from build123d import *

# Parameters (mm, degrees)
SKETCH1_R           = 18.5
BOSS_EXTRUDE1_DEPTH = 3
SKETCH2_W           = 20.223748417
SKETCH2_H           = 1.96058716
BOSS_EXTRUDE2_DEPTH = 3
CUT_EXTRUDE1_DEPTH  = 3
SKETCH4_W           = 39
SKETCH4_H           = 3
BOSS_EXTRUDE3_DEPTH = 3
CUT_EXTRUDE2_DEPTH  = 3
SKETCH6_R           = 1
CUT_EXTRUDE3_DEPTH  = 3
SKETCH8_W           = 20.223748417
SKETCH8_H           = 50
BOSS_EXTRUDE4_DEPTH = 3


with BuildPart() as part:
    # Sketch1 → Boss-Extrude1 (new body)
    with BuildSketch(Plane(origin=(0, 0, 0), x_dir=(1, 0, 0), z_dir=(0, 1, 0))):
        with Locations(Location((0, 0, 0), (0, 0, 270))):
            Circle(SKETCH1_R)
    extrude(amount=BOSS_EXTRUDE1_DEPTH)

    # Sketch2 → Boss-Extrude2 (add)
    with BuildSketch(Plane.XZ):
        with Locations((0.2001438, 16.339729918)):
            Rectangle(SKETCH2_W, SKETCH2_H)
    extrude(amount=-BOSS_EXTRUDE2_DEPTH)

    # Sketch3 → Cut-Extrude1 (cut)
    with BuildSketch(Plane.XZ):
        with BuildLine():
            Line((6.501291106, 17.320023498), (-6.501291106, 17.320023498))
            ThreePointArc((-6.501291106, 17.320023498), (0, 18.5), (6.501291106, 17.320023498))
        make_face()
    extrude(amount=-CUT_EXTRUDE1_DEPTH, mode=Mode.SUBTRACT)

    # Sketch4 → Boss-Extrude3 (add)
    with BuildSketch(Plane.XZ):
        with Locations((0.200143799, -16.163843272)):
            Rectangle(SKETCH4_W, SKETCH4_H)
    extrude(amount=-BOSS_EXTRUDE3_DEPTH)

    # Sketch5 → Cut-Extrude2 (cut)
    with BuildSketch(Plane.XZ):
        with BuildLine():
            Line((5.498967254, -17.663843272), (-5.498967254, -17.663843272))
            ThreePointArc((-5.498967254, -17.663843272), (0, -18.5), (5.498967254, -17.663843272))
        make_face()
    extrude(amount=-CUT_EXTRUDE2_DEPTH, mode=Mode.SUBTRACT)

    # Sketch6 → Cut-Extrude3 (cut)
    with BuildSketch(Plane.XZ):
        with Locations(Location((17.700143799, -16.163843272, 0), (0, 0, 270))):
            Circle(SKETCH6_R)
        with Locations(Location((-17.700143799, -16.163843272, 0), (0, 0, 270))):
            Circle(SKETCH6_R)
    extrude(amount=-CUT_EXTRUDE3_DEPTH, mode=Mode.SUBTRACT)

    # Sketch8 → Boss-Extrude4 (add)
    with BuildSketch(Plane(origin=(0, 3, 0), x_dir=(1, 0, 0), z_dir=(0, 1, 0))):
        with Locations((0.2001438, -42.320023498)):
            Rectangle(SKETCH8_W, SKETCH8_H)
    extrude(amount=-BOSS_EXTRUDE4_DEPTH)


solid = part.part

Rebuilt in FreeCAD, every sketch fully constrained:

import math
import FreeCAD as App
import Part
import Sketcher
from FreeCAD import Vector

doc = App.newDocument("Part")
params = doc.addObject("Spreadsheet::Sheet", "Params")
for row, (alias, value) in enumerate([
    ("sketch1_diameter", "37 mm"),
    ("pad1_length", "3 mm"),
    ("pad2_length", "3 mm"),
    ("sketch3_radius", "18.5 mm"),
    ("pocket1_length", "3 mm"),
    ("sketch4_width", "39 mm"),
    ("sketch4_height", "3 mm"),
    ("pad3_length", "3 mm"),
    ("sketch5_radius", "18.5 mm"),
    ("pocket2_length", "3 mm"),
    ("sketch6_diameter", "2 mm"),
    ("pocket3_length", "3 mm"),
    ("sketch7_height", "50 mm"),
    ("pad4_length", "3 mm"),
], start=1):
    params.set(f"A{row}", alias)
    params.set(f"B{row}", "=" + value)
    params.setAlias(f"B{row}", alias)

body = doc.addObject("PartDesign::Body", "Body")

# Sketch on XZ plane
sketch1 = body.newObject("Sketcher::SketchObject", "Sketch")
sketch1.AttachmentSupport = (doc.getObject("XZ_Plane"), [""])
sketch1.MapMode = "FlatFace"
sketch1.addGeometry(Part.Circle(Vector(0, 0, 0), Vector(0, 0, 1), 18), False)
sketch1.addConstraint(Sketcher.Constraint("Coincident", 0, 3, -1, 1))
sketch1.addConstraint(Sketcher.Constraint("Diameter", 0, 37.0))
sketch1.setExpression("Constraints[1]", "Params.sketch1_diameter")
pad1 = body.newObject("PartDesign::Pad", "Pad")
pad1.Profile = sketch1
pad1.setExpression("Length", "Params.pad1_length")
pad1.Reversed = True

# Sketch on XZ plane
sketch2 = body.newObject("Sketcher::SketchObject", "Sketch001")
sketch2.AttachmentSupport = (doc.getObject("XZ_Plane"), [""])
sketch2.MapMode = "FlatFace"
sketch2.addGeometry(Part.LineSegment(Vector(-9.9, 17.3, 0), Vector(-9.9, 15.4, 0)), False)
sketch2.addGeometry(Part.LineSegment(Vector(-9.9, 15.4, 0), Vector(10.3, 15.4, 0)), False)
sketch2.addGeometry(Part.LineSegment(Vector(10.3, 15.4, 0), Vector(10.3, 17.3, 0)), False)
sketch2.addGeometry(Part.LineSegment(Vector(10.3, 17.3, 0), Vector(-9.9, 17.3, 0)), False)
sketch2.addConstraint(Sketcher.Constraint("Coincident", 0, 2, 1, 1))
sketch2.addConstraint(Sketcher.Constraint("Coincident", 1, 2, 2, 1))
sketch2.addConstraint(Sketcher.Constraint("Coincident", 2, 2, 3, 1))
sketch2.addConstraint(Sketcher.Constraint("Coincident", 3, 2, 0, 1))
sketch2.addConstraint(Sketcher.Constraint("Vertical", 0))
sketch2.addConstraint(Sketcher.Constraint("Horizontal", 1))
sketch2.addConstraint(Sketcher.Constraint("Vertical", 2))
sketch2.addConstraint(Sketcher.Constraint("Horizontal", 3))
sketch2.addConstraint(Sketcher.Constraint("DistanceX", 1, 1, 1, 2, 20.223748))
sketch2.addConstraint(Sketcher.Constraint("DistanceY", 0, 2, 0, 1, 1.960587))
sketch2.addConstraint(Sketcher.Constraint("DistanceX", 0, 2, -1, 1, 9.91173))
sketch2.addConstraint(Sketcher.Constraint("DistanceY", -1, 1, 0, 2, 15.359436))
pad2 = body.newObject("PartDesign::Pad", "Pad001")
pad2.Profile = sketch2
pad2.setExpression("Length", "Params.pad2_length")
pad2.Reversed = True

# Sketch on XZ plane
sketch3 = body.newObject("Sketcher::SketchObject", "Sketch002")
sketch3.AttachmentSupport = (doc.getObject("XZ_Plane"), [""])
sketch3.MapMode = "FlatFace"
sketch3.addGeometry(Part.LineSegment(Vector(-7, 17, 0), Vector(7, 17, 0)), False)
sketch3.addGeometry(Part.ArcOfCircle(Part.Circle(Vector(0, 0, 0), Vector(0, 0, 1), 19), math.radians(69), math.radians(111)), False)
sketch3.addConstraint(Sketcher.Constraint("Coincident", 0, 1, 1, 2))
sketch3.addConstraint(Sketcher.Constraint("Coincident", 1, 1, 0, 2))
sketch3.addConstraint(Sketcher.Constraint("Horizontal", 0))
sketch3.addConstraint(Sketcher.Constraint("Coincident", 1, 3, -1, 1))
sketch3.addConstraint(Sketcher.Constraint("Radius", 1, 18.5))
sketch3.addConstraint(Sketcher.Constraint("DistanceX", 0, 1, 0, 2, 13.002582))
sketch3.setExpression("Constraints[4]", "Params.sketch3_radius")
pocket1 = body.newObject("PartDesign::Pocket", "Pocket")
pocket1.Profile = sketch3
pocket1.setExpression("Length", "Params.pocket1_length")

# Sketch on XZ plane
sketch4 = body.newObject("Sketcher::SketchObject", "Sketch003")
sketch4.AttachmentSupport = (doc.getObject("XZ_Plane"), [""])
sketch4.MapMode = "FlatFace"
sketch4.addGeometry(Part.LineSegment(Vector(-19.3, -14.7, 0), Vector(-19.3, -17.7, 0)), False)
sketch4.addGeometry(Part.LineSegment(Vector(-19.3, -17.7, 0), Vector(19.7, -17.7, 0)), False)
sketch4.addGeometry(Part.LineSegment(Vector(19.7, -17.7, 0), Vector(19.7, -14.7, 0)), False)
sketch4.addGeometry(Part.LineSegment(Vector(19.7, -14.7, 0), Vector(-19.3, -14.7, 0)), False)
sketch4.addConstraint(Sketcher.Constraint("Coincident", 0, 2, 1, 1))
sketch4.addConstraint(Sketcher.Constraint("Coincident", 1, 2, 2, 1))
sketch4.addConstraint(Sketcher.Constraint("Coincident", 2, 2, 3, 1))
sketch4.addConstraint(Sketcher.Constraint("Coincident", 3, 2, 0, 1))
sketch4.addConstraint(Sketcher.Constraint("Vertical", 0))
sketch4.addConstraint(Sketcher.Constraint("Horizontal", 1))
sketch4.addConstraint(Sketcher.Constraint("Vertical", 2))
sketch4.addConstraint(Sketcher.Constraint("Horizontal", 3))
sketch4.addConstraint(Sketcher.Constraint("DistanceX", 1, 1, 1, 2, 39.0))
sketch4.addConstraint(Sketcher.Constraint("DistanceY", 0, 2, 0, 1, 3.0))
sketch4.addConstraint(Sketcher.Constraint("DistanceX", 0, 2, -1, 1, 19.299856))
sketch4.addConstraint(Sketcher.Constraint("DistanceY", 0, 2, -1, 1, 17.663843))
sketch4.setExpression("Constraints[8]", "Params.sketch4_width")
sketch4.setExpression("Constraints[9]", "Params.sketch4_height")
pad3 = body.newObject("PartDesign::Pad", "Pad002")
pad3.Profile = sketch4
pad3.setExpression("Length", "Params.pad3_length")
pad3.Reversed = True

# Sketch on XZ plane
sketch5 = body.newObject("Sketcher::SketchObject", "Sketch004")
sketch5.AttachmentSupport = (doc.getObject("XZ_Plane"), [""])
sketch5.MapMode = "FlatFace"
sketch5.addGeometry(Part.LineSegment(Vector(5, -18, 0), Vector(-5, -18, 0)), False)
sketch5.addGeometry(Part.ArcOfCircle(Part.Circle(Vector(0, 0, 0), Vector(0, 0, 1), 18), math.radians(-107), math.radians(-73)), False)
sketch5.addConstraint(Sketcher.Constraint("Coincident", 0, 1, 1, 2))
sketch5.addConstraint(Sketcher.Constraint("Coincident", 1, 1, 0, 2))
sketch5.addConstraint(Sketcher.Constraint("Horizontal", 0))
sketch5.addConstraint(Sketcher.Constraint("Coincident", 1, 3, -1, 1))
sketch5.addConstraint(Sketcher.Constraint("Radius", 1, 18.5))
sketch5.addConstraint(Sketcher.Constraint("DistanceX", 0, 2, 0, 1, 10.997935))
sketch5.setExpression("Constraints[4]", "Params.sketch5_radius")
pocket2 = body.newObject("PartDesign::Pocket", "Pocket001")
pocket2.Profile = sketch5
pocket2.setExpression("Length", "Params.pocket2_length")

# Sketch on XZ plane
sketch6 = body.newObject("Sketcher::SketchObject", "Sketch005")
sketch6.AttachmentSupport = (doc.getObject("XZ_Plane"), [""])
sketch6.MapMode = "FlatFace"
sketch6.addGeometry(Part.Circle(Vector(17.7, -16.2, 0), Vector(0, 0, 1), 1), False)
sketch6.addGeometry(Part.Circle(Vector(-17.7, -16.2, 0), Vector(0, 0, 1), 1), False)
sketch6.addConstraint(Sketcher.Constraint("Equal", 0, 1))
sketch6.addConstraint(Sketcher.Constraint("Symmetric", 0, 3, 1, 3, -2))
sketch6.addConstraint(Sketcher.Constraint("Diameter", 0, 2.0))
sketch6.addConstraint(Sketcher.Constraint("DistanceX", -1, 1, 0, 3, 17.700144))
sketch6.addConstraint(Sketcher.Constraint("DistanceY", 0, 3, -1, 1, 16.163843))
sketch6.setExpression("Constraints[2]", "Params.sketch6_diameter")
pocket3 = body.newObject("PartDesign::Pocket", "Pocket002")
pocket3.Profile = sketch6
pocket3.setExpression("Length", "Params.pocket3_length")

# Sketch on XZ plane
sketch7 = body.newObject("Sketcher::SketchObject", "Sketch006")
sketch7.AttachmentSupport = (doc.getObject("XZ_Plane"), [""])
sketch7.MapMode = "FlatFace"
sketch7.AttachmentOffset = App.Placement(Vector(0, 0, -3), App.Rotation())
sketch7.addGeometry(Part.LineSegment(Vector(-10, 17, 0), Vector(-10, 67, 0)), False)
sketch7.addGeometry(Part.LineSegment(Vector(-10, 67, 0), Vector(10, 67, 0)), False)
sketch7.addGeometry(Part.LineSegment(Vector(10, 67, 0), Vector(10, 17, 0)), False)
sketch7.addGeometry(Part.LineSegment(Vector(10, 17, 0), Vector(-10, 17, 0)), False)
sketch7.addConstraint(Sketcher.Constraint("Coincident", 0, 2, 1, 1))
sketch7.addConstraint(Sketcher.Constraint("Coincident", 1, 2, 2, 1))
sketch7.addConstraint(Sketcher.Constraint("Coincident", 2, 2, 3, 1))
sketch7.addConstraint(Sketcher.Constraint("Coincident", 3, 2, 0, 1))
sketch7.addConstraint(Sketcher.Constraint("Vertical", 0))
sketch7.addConstraint(Sketcher.Constraint("Horizontal", 1))
sketch7.addConstraint(Sketcher.Constraint("Vertical", 2))
sketch7.addConstraint(Sketcher.Constraint("Horizontal", 3))
sketch7.addConstraint(Sketcher.Constraint("DistanceY", 0, 1, 0, 2, 50.0))
sketch7.addConstraint(Sketcher.Constraint("DistanceX", 1, 1, 1, 2, 20.223748))
sketch7.addConstraint(Sketcher.Constraint("DistanceX", 0, 2, -1, 1, 9.91173))
sketch7.addConstraint(Sketcher.Constraint("DistanceY", -1, 1, 0, 2, 67.320023))
sketch7.setExpression("Constraints[8]", "Params.sketch7_height")
pad4 = body.newObject("PartDesign::Pad", "Pad003")
pad4.Profile = sketch7
pad4.setExpression("Length", "Params.pad4_length")

doc.recompute()
